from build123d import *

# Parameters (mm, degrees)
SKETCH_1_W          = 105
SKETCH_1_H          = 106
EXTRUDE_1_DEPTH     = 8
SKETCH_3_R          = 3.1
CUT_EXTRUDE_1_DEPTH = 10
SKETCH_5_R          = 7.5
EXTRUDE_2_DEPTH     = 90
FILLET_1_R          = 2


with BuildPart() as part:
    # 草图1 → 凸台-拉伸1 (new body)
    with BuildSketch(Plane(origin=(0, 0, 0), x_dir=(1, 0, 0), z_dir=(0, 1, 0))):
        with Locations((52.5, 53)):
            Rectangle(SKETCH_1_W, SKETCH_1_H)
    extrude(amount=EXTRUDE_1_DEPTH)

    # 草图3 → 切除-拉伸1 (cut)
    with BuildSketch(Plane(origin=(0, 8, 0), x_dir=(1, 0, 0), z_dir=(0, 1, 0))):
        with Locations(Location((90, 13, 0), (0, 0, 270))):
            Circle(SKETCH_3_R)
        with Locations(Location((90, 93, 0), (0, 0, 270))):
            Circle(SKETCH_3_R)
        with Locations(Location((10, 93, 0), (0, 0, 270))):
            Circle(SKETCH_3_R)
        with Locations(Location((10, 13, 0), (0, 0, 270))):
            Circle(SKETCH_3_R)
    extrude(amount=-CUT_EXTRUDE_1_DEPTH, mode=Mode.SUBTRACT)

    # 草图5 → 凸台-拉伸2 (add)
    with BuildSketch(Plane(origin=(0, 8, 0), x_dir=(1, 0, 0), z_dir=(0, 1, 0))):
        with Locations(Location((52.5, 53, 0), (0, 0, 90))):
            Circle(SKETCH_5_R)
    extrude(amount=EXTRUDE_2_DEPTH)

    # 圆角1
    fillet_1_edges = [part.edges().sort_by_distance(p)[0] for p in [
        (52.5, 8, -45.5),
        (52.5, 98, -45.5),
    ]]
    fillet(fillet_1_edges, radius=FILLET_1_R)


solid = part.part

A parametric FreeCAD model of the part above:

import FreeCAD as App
import Part
import Sketcher
Q = App.Units.Quantity


def edges_at(feature, points):
    """Names of the edges that pass closest to the given points."""
    edges = feature.Shape.Edges
    near = lambda p: min(range(len(edges)), key=lambda i: edges[i].distToShape(Part.Vertex(*p))[0])
    return sorted({f"Edge{near(p) + 1}" for p in points})


def add_polygon(sketch, points):
    """Adds a closed chain of lines whose ends are joined by coincident constraints."""
    first, n = sketch.GeometryCount, len(points)
    for a, b in zip(points, points[1:] + points[:1]):
        sketch.addGeometry(Part.LineSegment(App.Vector(*a, 0), App.Vector(*b, 0)), False)
    for i in range(n):
        sketch.addConstraint(Sketcher.Constraint("Coincident", first + i, 2, first + (i + 1) % n, 1))

doc = App.newDocument("Part")
body = doc.addObject("PartDesign::Body", "Body")

# Sketch on XZ plane
sketch1 = body.newObject("Sketcher::SketchObject", "Sketch")
sketch1.AttachmentSupport = (doc.getObject("XZ_Plane"), [""])
sketch1.MapMode = "FlatFace"
add_polygon(sketch1, [(0, -106), (0, 0), (105, 0), (105, -106)])  # lines 0-3
sketch1.addConstraint([
    Sketcher.Constraint("Vertical", 0),
    Sketcher.Constraint("Horizontal", 1),
    Sketcher.Constraint("Vertical", 2),
    Sketcher.Constraint("Horizontal", 3),
    Sketcher.Constraint("Coincident", 0, 2, -1, 1),
    Sketcher.Constraint("DistanceX", 1, 1, 1, 2, Q("105 mm")),
    Sketcher.Constraint("DistanceY", 0, 1, 0, 2, Q("106 mm")),
])
pad1 = body.newObject("PartDesign::Pad", "Pad")
pad1.Profile = sketch1
pad1.Length = 8
pad1.Reversed = True

# Sketch on XZ plane
sketch2 = body.newObject("Sketcher::SketchObject", "Sketch001")
sketch2.AttachmentSupport = (doc.getObject("XZ_Plane"), [""])
sketch2.MapMode = "FlatFace"
sketch2.AttachmentOffset = App.Placement(App.Vector(0, 0, -8), App.Rotation())
sketch2.addGeometry([
    Part.Circle(App.Vector(90, -13, 0), App.Vector(0, 0, 1), 3.1),
    Part.Circle(App.Vector(90, -93, 0), App.Vector(0, 0, 1), 3.1),
    Part.Circle(App.Vector(10, -93, 0), App.Vector(0, 0, 1), 3.1),
    Part.Circle(App.Vector(10, -13, 0), App.Vector(0, 0, 1), 3.1),
], False)
sketch2.addConstraint([
    Sketcher.Constraint("Equal", 0, 1),
    Sketcher.Constraint("Equal", 1, 2),
    Sketcher.Constraint("Equal", 2, 3),
    Sketcher.Constraint("Horizontal", 1, 3, 2, 3),
    Sketcher.Constraint("Horizontal", 0, 3, 3, 3),
    Sketcher.Constraint("Vertical", 0, 3, 1, 3),
    Sketcher.Constraint("Vertical", 2, 3, 3, 3),
    Sketcher.Constraint("Diameter", 0, Q("6.2 mm")),
    Sketcher.Constraint("DistanceX", -1, 1, 0, 3, Q("90 mm")),
    Sketcher.Constraint("DistanceY", 0, 3, -1, 1, Q("13 mm")),
    Sketcher.Constraint("DistanceY", 1, 3, -1, 1, Q("93 mm")),
    Sketcher.Constraint("DistanceX", -1, 1, 2, 3, Q("10 mm")),
])
pocket1 = body.newObject("PartDesign::Pocket", "Pocket")
pocket1.Profile = sketch2
pocket1.Length = 10
pocket1.Reversed = True

# Sketch on XZ plane
sketch3 = body.newObject("Sketcher::SketchObject", "Sketch002")
sketch3.AttachmentSupport = (doc.getObject("XZ_Plane"), [""])
sketch3.MapMode = "FlatFace"
sketch3.AttachmentOffset = App.Placement(App.Vector(0, 0, -8), App.Rotation())
sketch3.addGeometry(Part.Circle(App.Vector(52.5, -53, 0), App.Vector(0, 0, 1), 7.5), False)
sketch3.addConstraint([
    Sketcher.Constraint("Diameter", 0, Q("15 mm")),
    Sketcher.Constraint("DistanceY", 0, 3, -1, 1, Q("53 mm")),
    Sketcher.Constraint("DistanceX", -1, 1, 0, 3, Q("52.5 mm")),
])
pad2 = body.newObject("PartDesign::Pad", "Pad001")
pad2.Profile = sketch3
pad2.Length = 90
pad2.Reversed = True
doc.recompute()

fillet = body.newObject("PartDesign::Fillet", "Fillet")
fillet.Base = (pad2, edges_at(pad2, [(52.5, 8, -45.5), (52.5, 98, -45.5)]))
fillet.Radius = 2

doc.recompute()
